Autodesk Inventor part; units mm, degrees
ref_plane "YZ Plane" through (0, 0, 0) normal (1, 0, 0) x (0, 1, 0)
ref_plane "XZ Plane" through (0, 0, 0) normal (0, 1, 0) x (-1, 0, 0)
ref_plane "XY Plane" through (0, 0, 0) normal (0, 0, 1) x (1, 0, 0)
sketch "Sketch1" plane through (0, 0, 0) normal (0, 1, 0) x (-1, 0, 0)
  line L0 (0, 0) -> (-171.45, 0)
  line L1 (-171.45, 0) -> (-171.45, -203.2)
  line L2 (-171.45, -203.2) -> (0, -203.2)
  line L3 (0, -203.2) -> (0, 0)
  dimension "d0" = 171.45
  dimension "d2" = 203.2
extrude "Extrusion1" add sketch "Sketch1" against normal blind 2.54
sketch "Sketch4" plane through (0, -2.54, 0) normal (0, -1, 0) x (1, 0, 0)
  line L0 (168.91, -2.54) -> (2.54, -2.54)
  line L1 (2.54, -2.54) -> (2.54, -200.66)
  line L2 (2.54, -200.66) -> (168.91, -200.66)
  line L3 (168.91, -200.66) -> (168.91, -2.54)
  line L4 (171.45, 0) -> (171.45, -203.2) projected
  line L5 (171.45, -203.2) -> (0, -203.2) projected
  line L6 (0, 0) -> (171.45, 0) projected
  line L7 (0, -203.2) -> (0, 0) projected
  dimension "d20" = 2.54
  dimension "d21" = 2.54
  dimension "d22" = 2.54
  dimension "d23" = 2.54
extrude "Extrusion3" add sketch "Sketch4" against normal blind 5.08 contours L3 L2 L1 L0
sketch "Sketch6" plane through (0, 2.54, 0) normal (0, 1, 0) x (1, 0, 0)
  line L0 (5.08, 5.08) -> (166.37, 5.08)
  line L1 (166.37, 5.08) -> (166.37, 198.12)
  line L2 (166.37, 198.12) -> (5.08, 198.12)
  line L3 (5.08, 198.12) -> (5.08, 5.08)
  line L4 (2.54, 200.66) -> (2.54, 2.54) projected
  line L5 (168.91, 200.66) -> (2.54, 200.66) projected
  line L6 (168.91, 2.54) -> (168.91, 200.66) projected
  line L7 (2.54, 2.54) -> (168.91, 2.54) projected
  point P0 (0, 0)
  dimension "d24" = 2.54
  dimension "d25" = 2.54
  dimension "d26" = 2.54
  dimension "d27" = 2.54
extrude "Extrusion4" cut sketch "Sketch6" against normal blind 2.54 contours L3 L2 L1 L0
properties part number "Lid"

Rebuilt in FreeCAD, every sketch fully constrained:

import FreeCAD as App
import Part
import Sketcher
Q = App.Units.Quantity


def add_polygon(sketch, points):
    """Adds a closed chain of lines whose ends are joined by coincident constraints."""
    first, n = sketch.GeometryCount, len(points)
    for a, b in zip(points, points[1:] + points[:1]):
        sketch.addGeometry(Part.LineSegment(App.Vector(*a, 0), App.Vector(*b, 0)), False)
    for i in range(n):
        sketch.addConstraint(Sketcher.Constraint("Coincident", first + i, 2, first + (i + 1) % n, 1))

doc = App.newDocument("Part")
params = doc.addObject("Spreadsheet::Sheet", "Params")
for row, (alias, value) in enumerate([
    ("sketch1_height", "8 in"),
    ("sketch1_width", "6.75 in"),
    ("pad1_length", "0.1 in"),
    ("sketch2_height", "7.8 in"),
    ("sketch2_width", "6.55 in"),
    ("pad2_length", "0.2 in"),
    ("sketch3_height", "7.6 in"),
    ("sketch3_width", "6.35 in"),
    ("pocket1_length", "0.1 in"),
], start=1):
    params.set(f"A{row}", alias)
    params.set(f"B{row}", "=" + value)
    params.setAlias(f"B{row}", alias)

body = doc.addObject("PartDesign::Body", "Body")

# Sketch on XZ plane
sketch1 = doc.addObject("Sketcher::SketchObject", "Sketch")
body.addObject(sketch1)
sketch1.AttachmentSupport = (doc.XZ_Plane, [""])
sketch1.MapMode = "FlatFace"
add_polygon(sketch1, [(0, -203.2), (0, 0), (171.45, 0), (171.45, -203.2)])  # lines 0-3
sketch1.addConstraint([
    Sketcher.Constraint("Vertical", 0),
    Sketcher.Constraint("Horizontal", 1),
    Sketcher.Constraint("Vertical", 2),
    Sketcher.Constraint("Horizontal", 3),
    Sketcher.Constraint("Coincident", 0, 2, -1, 1),
    Sketcher.Constraint("DistanceY", 0, 1, 0, 2, Q("8 in")),
    Sketcher.Constraint("DistanceX", 1, 1, 1, 2, Q("6.75 in")),
])
sketch1.setExpression("Constraints[9]", "Params.sketch1_height")
sketch1.setExpression("Constraints[10]", "Params.sketch1_width")
pad1 = doc.addObject("PartDesign::Pad", "Pad")
body.addObject(pad1)
pad1.Profile = sketch1
pad1.setExpression("Length", "Params.pad1_length")

# Sketch on XZ plane
sketch2 = doc.addObject("Sketcher::SketchObject", "Sketch001")
body.addObject(sketch2)
sketch2.AttachmentSupport = (doc.XZ_Plane, [""])
sketch2.MapMode = "FlatFace"
sketch2.AttachmentOffset = App.Placement(App.Vector(0, 0, 0.1 * 25.4), App.Rotation())
add_polygon(sketch2, [(168.91, -200.66), (168.91, -2.54), (2.54, -2.54), (2.54, -200.66)])  # lines 0-3
sketch2.addConstraint([
    Sketcher.Constraint("Vertical", 0),
    Sketcher.Constraint("Horizontal", 1),
    Sketcher.Constraint("Vertical", 2),
    Sketcher.Constraint("Horizontal", 3),
    Sketcher.Constraint("DistanceY", 0, 2, -1, 1, Q("0.1 in")),
    Sketcher.Constraint("DistanceX", -1, 1, 1, 2, Q("0.1 in")),
    Sketcher.Constraint("DistanceY", 0, 1, 0, 2, Q("7.8 in")),
    Sketcher.Constraint("DistanceX", 1, 2, 1, 1, Q("6.55 in")),
])
sketch2.setExpression("Constraints[10]", "Params.sketch2_height")
sketch2.setExpression("Constraints[11]", "Params.sketch2_width")
pad2 = doc.addObject("PartDesign::Pad", "Pad001")
body.addObject(pad2)
pad2.Profile = sketch2
pad2.setExpression("Length", "Params.pad2_length")
pad2.Reversed = True

# Sketch on XZ plane
sketch3 = doc.addObject("Sketcher::SketchObject", "Sketch002")
body.addObject(sketch3)
sketch3.AttachmentSupport = (doc.XZ_Plane, [""])
sketch3.MapMode = "FlatFace"
sketch3.AttachmentOffset = App.Placement(App.Vector(0, 0, -0.1 * 25.4), App.Rotation())
add_polygon(sketch3, [(5.08, -198.12), (5.08, -5.08), (166.37, -5.08), (166.37, -198.12)])  # lines 0-3
sketch3.addConstraint([
    Sketcher.Constraint("Vertical", 0),
    Sketcher.Constraint("Horizontal", 1),
    Sketcher.Constraint("Vertical", 2),
    Sketcher.Constraint("Horizontal", 3),
    Sketcher.Constraint("DistanceY", 0, 1, 0, 2, Q("7.6 in")),
    Sketcher.Constraint("DistanceX", 1, 1, 1, 2, Q("6.35 in")),
    Sketcher.Constraint("DistanceX", -1, 1, 0, 2, Q("0.2 in")),
    Sketcher.Constraint("DistanceY", 0, 2, -1, 1, Q("0.2 in")),
])
sketch3.setExpression("Constraints[8]", "Params.sketch3_height")
sketch3.setExpression("Constraints[9]", "Params.sketch3_width")
pocket1 = doc.addObject("PartDesign::Pocket", "Pocket")
body.addObject(pocket1)
pocket1.Profile = sketch3
pocket1.setExpression("Length", "Params.pocket1_length")
pocket1.Reversed = True

doc.recompute()
